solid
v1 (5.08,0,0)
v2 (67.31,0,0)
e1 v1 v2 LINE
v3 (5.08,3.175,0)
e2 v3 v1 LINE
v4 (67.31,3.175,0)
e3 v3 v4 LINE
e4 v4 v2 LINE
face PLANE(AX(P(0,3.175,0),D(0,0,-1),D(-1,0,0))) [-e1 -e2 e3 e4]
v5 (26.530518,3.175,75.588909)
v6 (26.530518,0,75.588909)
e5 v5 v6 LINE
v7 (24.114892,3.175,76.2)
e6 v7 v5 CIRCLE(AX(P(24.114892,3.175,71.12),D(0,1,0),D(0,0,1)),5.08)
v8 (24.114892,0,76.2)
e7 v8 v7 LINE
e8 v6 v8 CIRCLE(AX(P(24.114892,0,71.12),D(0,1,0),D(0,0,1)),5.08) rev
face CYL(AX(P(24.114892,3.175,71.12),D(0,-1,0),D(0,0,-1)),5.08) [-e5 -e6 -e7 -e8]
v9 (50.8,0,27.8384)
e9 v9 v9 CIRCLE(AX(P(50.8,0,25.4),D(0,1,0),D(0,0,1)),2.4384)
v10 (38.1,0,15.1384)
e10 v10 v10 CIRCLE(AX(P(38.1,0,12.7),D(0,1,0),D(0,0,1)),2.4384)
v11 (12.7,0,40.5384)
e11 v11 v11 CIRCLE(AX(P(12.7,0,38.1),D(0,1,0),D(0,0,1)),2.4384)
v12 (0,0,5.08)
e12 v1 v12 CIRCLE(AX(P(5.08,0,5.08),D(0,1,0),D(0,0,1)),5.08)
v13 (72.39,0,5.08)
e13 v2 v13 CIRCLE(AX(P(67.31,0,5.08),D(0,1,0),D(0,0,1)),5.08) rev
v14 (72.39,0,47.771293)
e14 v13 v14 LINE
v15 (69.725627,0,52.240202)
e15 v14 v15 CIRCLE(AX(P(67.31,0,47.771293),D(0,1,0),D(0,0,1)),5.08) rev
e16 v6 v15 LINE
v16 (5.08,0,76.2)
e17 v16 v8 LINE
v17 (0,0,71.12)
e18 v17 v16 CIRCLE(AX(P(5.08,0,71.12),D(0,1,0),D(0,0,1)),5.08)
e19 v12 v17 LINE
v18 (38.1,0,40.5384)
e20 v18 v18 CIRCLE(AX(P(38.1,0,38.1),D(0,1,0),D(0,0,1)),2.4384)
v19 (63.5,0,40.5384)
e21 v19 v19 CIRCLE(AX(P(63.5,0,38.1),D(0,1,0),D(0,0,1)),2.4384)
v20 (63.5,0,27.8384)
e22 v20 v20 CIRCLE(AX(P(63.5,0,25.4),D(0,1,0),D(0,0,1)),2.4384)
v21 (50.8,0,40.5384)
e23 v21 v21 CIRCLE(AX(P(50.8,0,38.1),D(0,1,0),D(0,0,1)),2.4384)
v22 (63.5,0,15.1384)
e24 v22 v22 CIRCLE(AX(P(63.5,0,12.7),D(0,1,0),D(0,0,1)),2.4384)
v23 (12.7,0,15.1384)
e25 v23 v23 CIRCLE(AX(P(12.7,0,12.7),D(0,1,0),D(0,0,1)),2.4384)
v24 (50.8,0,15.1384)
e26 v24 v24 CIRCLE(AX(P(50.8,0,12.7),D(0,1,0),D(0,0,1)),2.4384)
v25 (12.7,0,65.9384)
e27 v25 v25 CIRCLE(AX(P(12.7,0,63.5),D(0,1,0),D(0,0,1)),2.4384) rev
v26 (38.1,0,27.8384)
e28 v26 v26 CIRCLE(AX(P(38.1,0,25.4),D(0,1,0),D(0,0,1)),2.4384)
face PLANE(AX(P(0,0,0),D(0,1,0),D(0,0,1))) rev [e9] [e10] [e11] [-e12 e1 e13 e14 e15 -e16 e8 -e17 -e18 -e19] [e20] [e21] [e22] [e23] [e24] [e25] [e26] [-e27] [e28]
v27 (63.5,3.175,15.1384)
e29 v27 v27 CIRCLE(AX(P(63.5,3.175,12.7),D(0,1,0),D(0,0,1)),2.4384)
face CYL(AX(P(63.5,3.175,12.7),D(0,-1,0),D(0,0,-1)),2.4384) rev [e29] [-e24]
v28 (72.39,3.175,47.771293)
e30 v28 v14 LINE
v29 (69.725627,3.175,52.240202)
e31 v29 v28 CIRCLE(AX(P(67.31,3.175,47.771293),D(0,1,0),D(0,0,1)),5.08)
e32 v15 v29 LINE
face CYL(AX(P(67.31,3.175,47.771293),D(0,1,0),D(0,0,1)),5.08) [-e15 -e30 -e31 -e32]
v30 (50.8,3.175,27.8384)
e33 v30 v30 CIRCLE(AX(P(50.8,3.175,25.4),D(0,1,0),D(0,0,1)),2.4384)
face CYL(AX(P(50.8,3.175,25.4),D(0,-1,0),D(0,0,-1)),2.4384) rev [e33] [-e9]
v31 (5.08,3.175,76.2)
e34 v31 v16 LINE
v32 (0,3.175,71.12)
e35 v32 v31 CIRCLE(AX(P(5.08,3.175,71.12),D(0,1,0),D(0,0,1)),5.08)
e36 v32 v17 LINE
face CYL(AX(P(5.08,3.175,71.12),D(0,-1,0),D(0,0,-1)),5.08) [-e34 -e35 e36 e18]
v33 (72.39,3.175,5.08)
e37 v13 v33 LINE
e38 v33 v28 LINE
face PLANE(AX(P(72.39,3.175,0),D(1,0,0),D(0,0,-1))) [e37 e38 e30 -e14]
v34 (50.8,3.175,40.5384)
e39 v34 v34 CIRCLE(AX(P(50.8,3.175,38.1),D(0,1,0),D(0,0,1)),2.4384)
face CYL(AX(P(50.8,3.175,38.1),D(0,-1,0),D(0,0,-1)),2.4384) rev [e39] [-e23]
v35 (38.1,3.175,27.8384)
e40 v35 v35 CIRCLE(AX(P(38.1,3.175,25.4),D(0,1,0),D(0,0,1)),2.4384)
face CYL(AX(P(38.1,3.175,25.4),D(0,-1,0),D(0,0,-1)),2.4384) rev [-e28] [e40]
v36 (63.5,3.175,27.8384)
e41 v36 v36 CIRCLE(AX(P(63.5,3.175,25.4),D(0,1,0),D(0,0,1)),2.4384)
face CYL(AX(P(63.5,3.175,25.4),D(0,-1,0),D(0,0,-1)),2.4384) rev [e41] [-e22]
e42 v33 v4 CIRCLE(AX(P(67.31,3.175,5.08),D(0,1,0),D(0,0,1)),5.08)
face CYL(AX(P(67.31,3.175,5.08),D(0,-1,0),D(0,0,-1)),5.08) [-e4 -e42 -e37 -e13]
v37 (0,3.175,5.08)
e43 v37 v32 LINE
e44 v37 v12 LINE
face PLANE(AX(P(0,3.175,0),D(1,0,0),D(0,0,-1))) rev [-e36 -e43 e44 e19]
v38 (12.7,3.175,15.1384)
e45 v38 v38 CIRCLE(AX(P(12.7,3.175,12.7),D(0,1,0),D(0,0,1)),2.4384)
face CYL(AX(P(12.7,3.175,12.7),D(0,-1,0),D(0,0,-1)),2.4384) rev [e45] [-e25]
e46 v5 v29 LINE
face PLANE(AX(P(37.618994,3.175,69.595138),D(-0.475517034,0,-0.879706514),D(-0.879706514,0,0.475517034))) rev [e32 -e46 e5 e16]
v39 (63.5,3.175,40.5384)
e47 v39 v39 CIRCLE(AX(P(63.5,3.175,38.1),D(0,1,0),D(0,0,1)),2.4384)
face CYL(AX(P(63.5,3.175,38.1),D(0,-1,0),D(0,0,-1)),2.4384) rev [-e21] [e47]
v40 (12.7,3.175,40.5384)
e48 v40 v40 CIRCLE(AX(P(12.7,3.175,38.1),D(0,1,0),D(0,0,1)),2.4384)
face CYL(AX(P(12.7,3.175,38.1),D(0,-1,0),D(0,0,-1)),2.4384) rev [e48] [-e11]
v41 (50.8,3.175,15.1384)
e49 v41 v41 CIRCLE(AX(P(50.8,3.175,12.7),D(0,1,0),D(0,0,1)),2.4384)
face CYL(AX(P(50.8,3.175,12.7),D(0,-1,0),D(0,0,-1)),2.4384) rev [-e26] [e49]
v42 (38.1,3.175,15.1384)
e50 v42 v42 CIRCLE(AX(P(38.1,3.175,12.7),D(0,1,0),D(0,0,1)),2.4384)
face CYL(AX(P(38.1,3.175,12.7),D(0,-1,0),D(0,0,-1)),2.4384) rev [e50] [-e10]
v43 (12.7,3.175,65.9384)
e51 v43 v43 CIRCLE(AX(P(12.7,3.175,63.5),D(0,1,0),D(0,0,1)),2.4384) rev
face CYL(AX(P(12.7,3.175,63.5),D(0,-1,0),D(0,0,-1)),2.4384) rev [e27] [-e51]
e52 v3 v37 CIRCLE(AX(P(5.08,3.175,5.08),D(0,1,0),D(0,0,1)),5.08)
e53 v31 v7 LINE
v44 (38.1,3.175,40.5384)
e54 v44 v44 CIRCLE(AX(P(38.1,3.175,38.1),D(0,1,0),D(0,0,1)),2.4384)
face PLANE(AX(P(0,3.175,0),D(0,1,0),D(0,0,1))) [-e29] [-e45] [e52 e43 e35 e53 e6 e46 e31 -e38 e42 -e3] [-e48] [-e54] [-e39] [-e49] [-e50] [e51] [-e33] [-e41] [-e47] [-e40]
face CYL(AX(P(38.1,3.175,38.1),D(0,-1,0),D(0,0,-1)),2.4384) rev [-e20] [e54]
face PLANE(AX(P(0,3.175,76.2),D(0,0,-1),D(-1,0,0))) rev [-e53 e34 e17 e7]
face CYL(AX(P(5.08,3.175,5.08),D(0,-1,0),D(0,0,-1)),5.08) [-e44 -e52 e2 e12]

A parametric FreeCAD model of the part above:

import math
import FreeCAD as App
import Part
import Sketcher

V = App.Vector
Q = App.Units.Quantity


def edges_at(feature, points):
    """Names of the edges that pass closest to the given points."""
    edges = feature.Shape.Edges
    near = lambda p: min(range(len(edges)), key=lambda i: edges[i].distToShape(Part.Vertex(*p))[0])
    return sorted({f"Edge{near(p) + 1}" for p in points})

doc = App.newDocument("Part")
body = doc.addObject("PartDesign::Body", "Body")

sketch1 = doc.addObject("Sketcher::SketchObject", "Sketch")
body.addObject(sketch1)
sketch1.AttachmentSupport = (doc.XZ_Plane, [""])
sketch1.MapMode = "FlatFace"
sketch1.addGeometry(Part.ArcOfCircle(Part.Circle(V(5.1, 5.1, 0), V(0, 0, 1), 5.1), math.radians(-180), math.radians(-90)), False)
sketch1.addGeometry(Part.LineSegment(V(0, 5.1, 0), V(0, 71.1, 0)), False)
sketch1.addGeometry(Part.ArcOfCircle(Part.Circle(V(5.1, 71.1, 0), V(0, 0, 1), 5.1), math.radians(90), math.radians(180)), False)
sketch1.addGeometry(Part.LineSegment(V(5.1, 76.2, 0), V(25.4, 76.2, 0)), False)
sketch1.addGeometry(Part.LineSegment(V(25.4, 76.2, 0), V(72.4, 50.8, 0)), False)
sketch1.addGeometry(Part.LineSegment(V(72.4, 50.8, 0), V(72.4, 0, 0)), False)
sketch1.addGeometry(Part.LineSegment(V(72.4, 0, 0), V(5.1, 0, 0)), False)
sketch1.addGeometry(Part.Circle(V(12.7, 63.5, 0), V(0, 0, 1), 2.4), False)
sketch1.addGeometry(Part.Circle(V(12.7, 38.1, 0), V(0, 0, 1), 2.4), False)
sketch1.addGeometry(Part.Circle(V(12.7, 12.7, 0), V(0, 0, 1), 2.4), False)
sketch1.addGeometry(Part.Circle(V(38.1, 38.1, 0), V(0, 0, 1), 2.4), False)
sketch1.addGeometry(Part.Circle(V(50.8, 38.1, 0), V(0, 0, 1), 2.4), False)
sketch1.addGeometry(Part.Circle(V(38.1, 25.4, 0), V(0, 0, 1), 2.4), False)
sketch1.addGeometry(Part.Circle(V(50.8, 25.4, 0), V(0, 0, 1), 2.4), False)
sketch1.addGeometry(Part.Circle(V(63.5, 38.1, 0), V(0, 0, 1), 2.4), False)
sketch1.addGeometry(Part.Circle(V(63.5, 25.4, 0), V(0, 0, 1), 2.4), False)
sketch1.addGeometry(Part.Circle(V(38.1, 12.7, 0), V(0, 0, 1), 2.4), False)
sketch1.addGeometry(Part.Circle(V(50.8, 12.7, 0), V(0, 0, 1), 2.4), False)
sketch1.addGeometry(Part.Circle(V(63.5, 12.7, 0), V(0, 0, 1), 2.4), False)
sketch1.addConstraint(Sketcher.Constraint("Tangent", 0, 1, 1, 1))
sketch1.addConstraint(Sketcher.Constraint("Tangent", 1, 2, 2, 2))
sketch1.addConstraint(Sketcher.Constraint("Tangent", 2, 1, 3, 1))
sketch1.addConstraint(Sketcher.Constraint("Coincident", 3, 2, 4, 1))
sketch1.addConstraint(Sketcher.Constraint("Coincident", 4, 2, 5, 1))
sketch1.addConstraint(Sketcher.Constraint("Coincident", 5, 2, 6, 1))
sketch1.addConstraint(Sketcher.Constraint("Tangent", 6, 2, 0, 2))
sketch1.addConstraint(Sketcher.Constraint("Vertical", 1))
sketch1.addConstraint(Sketcher.Constraint("Horizontal", 3))
sketch1.addConstraint(Sketcher.Constraint("Vertical", 5))
sketch1.addConstraint(Sketcher.Constraint("Horizontal", 6))
sketch1.addConstraint(Sketcher.Constraint("Equal", 0, 2))
sketch1.addConstraint(Sketcher.Constraint("Equal", 7, 8))
sketch1.addConstraint(Sketcher.Constraint("Equal", 8, 9))
sketch1.addConstraint(Sketcher.Constraint("Equal", 9, 10))
sketch1.addConstraint(Sketcher.Constraint("Equal", 10, 11))
sketch1.addConstraint(Sketcher.Constraint("Equal", 11, 12))
sketch1.addConstraint(Sketcher.Constraint("Equal", 12, 13))
sketch1.addConstraint(Sketcher.Constraint("Equal", 13, 14))
sketch1.addConstraint(Sketcher.Constraint("Equal", 14, 15))
sketch1.addConstraint(Sketcher.Constraint("Equal", 15, 16))
sketch1.addConstraint(Sketcher.Constraint("Equal", 16, 17))
sketch1.addConstraint(Sketcher.Constraint("Equal", 17, 18))
sketch1.addConstraint(Sketcher.Constraint("PointOnObject", 0, 1, -2))
sketch1.addConstraint(Sketcher.Constraint("PointOnObject", 5, 2, -1))
sketch1.addConstraint(Sketcher.Constraint("Horizontal", 8, 3, 10, 3))
sketch1.addConstraint(Sketcher.Constraint("Horizontal", 10, 3, 11, 3))
sketch1.addConstraint(Sketcher.Constraint("Horizontal", 12, 3, 13, 3))
sketch1.addConstraint(Sketcher.Constraint("Horizontal", 11, 3, 14, 3))
sketch1.addConstraint(Sketcher.Constraint("Horizontal", 13, 3, 15, 3))
sketch1.addConstraint(Sketcher.Constraint("Horizontal", 9, 3, 16, 3))
sketch1.addConstraint(Sketcher.Constraint("Horizontal", 16, 3, 17, 3))
sketch1.addConstraint(Sketcher.Constraint("Horizontal", 17, 3, 18, 3))
sketch1.addConstraint(Sketcher.Constraint("Vertical", 7, 3, 8, 3))
sketch1.addConstraint(Sketcher.Constraint("Vertical", 8, 3, 9, 3))
sketch1.addConstraint(Sketcher.Constraint("Vertical", 10, 3, 12, 3))
sketch1.addConstraint(Sketcher.Constraint("Vertical", 11, 3, 13, 3))
sketch1.addConstraint(Sketcher.Constraint("Vertical", 14, 3, 15, 3))
sketch1.addConstraint(Sketcher.Constraint("Vertical", 12, 3, 16, 3))
sketch1.addConstraint(Sketcher.Constraint("Vertical", 13, 3, 17, 3))
sketch1.addConstraint(Sketcher.Constraint("Vertical", 15, 3, 18, 3))
sketch1.addConstraint(Sketcher.Constraint("Radius", 0, Q("0.2 in")))
sketch1.addConstraint(Sketcher.Constraint("DistanceY", 5, 2, 5, 1, Q("2 in")))
sketch1.addConstraint(Sketcher.Constraint("Diameter", 7, Q("0.192 in")))
sketch1.addConstraint(Sketcher.Constraint("DistanceX", 3, 1, 3, 2, Q("0.8 in")))
sketch1.addConstraint(Sketcher.Constraint("DistanceY", 1, 1, 1, 2, Q("2.6 in")))
sketch1.addConstraint(Sketcher.Constraint("DistanceX", -1, 1, 11, 3, Q("2 in")))
sketch1.addConstraint(Sketcher.Constraint("DistanceY", -1, 1, 12, 3, Q("1 in")))
sketch1.addConstraint(Sketcher.Constraint("DistanceY", 8, 3, 7, 3, Q("1 in")))
sketch1.addConstraint(Sketcher.Constraint("DistanceY", 9, 3, 8, 3, Q("1 in")))
sketch1.addConstraint(Sketcher.Constraint("DistanceX", 8, 3, 10, 3, Q("1 in")))
sketch1.addConstraint(Sketcher.Constraint("DistanceX", 10, 3, 14, 3, Q("1 in")))
sketch1.addConstraint(Sketcher.Constraint("DistanceX", 6, 2, 6, 1, Q("2.65 in")))
sketch1.addConstraint(Sketcher.Constraint("DistanceX", -1, 1, 7, 3, Q("0.5 in")))
sketch1.addConstraint(Sketcher.Constraint("DistanceY", -1, 1, 7, 3, Q("2.5 in")))
pad1 = doc.addObject("PartDesign::Pad", "Pad")
body.addObject(pad1)
pad1.Profile = sketch1
pad1.Length = Q("0.125 in")
pad1.Reversed = True
doc.recompute()

fillet = doc.addObject("PartDesign::Fillet", "Fillet")
body.addObject(fillet)
fillet.Base = (pad1, edges_at(pad1, [(72.39, 1.587, 0), (72.39, 1.587, 50.8), (25.4, 1.587, 76.2)]))
fillet.Radius = Q("0.2 in")

doc.recompute()
